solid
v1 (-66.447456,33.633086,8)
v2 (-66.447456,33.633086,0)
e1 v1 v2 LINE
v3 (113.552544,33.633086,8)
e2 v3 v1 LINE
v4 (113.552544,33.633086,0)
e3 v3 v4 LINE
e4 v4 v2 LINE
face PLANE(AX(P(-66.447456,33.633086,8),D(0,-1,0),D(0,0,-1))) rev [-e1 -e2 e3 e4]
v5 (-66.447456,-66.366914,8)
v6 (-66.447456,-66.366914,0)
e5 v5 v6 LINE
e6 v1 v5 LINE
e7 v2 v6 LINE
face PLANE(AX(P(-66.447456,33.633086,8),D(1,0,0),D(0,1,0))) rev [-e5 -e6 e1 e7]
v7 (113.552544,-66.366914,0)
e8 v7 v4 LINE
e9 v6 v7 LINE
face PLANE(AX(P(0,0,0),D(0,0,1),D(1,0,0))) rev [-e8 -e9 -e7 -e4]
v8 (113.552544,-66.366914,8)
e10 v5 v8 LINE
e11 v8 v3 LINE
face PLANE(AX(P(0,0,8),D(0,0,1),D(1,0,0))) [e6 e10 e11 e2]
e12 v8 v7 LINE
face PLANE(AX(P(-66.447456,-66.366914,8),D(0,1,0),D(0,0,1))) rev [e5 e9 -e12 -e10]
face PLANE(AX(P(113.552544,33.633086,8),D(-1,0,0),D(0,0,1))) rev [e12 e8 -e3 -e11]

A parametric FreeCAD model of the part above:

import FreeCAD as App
import Part
import Sketcher
Q = App.Units.Quantity


def add_polygon(sketch, points):
    """Adds a closed chain of lines whose ends are joined by coincident constraints."""
    first, n = sketch.GeometryCount, len(points)
    for a, b in zip(points, points[1:] + points[:1]):
        sketch.addGeometry(Part.LineSegment(App.Vector(*a, 0), App.Vector(*b, 0)), False)
    for i in range(n):
        sketch.addConstraint(Sketcher.Constraint("Coincident", first + i, 2, first + (i + 1) % n, 1))

doc = App.newDocument("Part")
body = doc.addObject("PartDesign::Body", "Body")

# Sketch on XY plane
sketch1 = body.newObject("Sketcher::SketchObject", "Sketch")
sketch1.AttachmentSupport = (doc.getObject("XY_Plane"), [""])
sketch1.MapMode = "FlatFace"
add_polygon(sketch1, [(-66, 34), (-66, -66), (114, -66), (114, 34)])  # lines 0-3
sketch1.addConstraint(Sketcher.Constraint("Vertical", 0))
sketch1.addConstraint(Sketcher.Constraint("Horizontal", 1))
sketch1.addConstraint(Sketcher.Constraint("Vertical", 2))
sketch1.addConstraint(Sketcher.Constraint("Horizontal", 3))
sketch1.addConstraint(Sketcher.Constraint("DistanceX", 1, 1, 1, 2, Q("180 mm")))
sketch1.addConstraint(Sketcher.Constraint("DistanceY", 0, 2, 0, 1, Q("100 mm")))
sketch1.addConstraint(Sketcher.Constraint("DistanceX", 0, 2, -1, 1, Q("66.447456 mm")))
sketch1.addConstraint(Sketcher.Constraint("DistanceY", 0, 2, -1, 1, Q("66.366914 mm")))
pad1 = body.newObject("PartDesign::Pad", "Pad")
pad1.Profile = sketch1
pad1.Length = 8

doc.recompute()
